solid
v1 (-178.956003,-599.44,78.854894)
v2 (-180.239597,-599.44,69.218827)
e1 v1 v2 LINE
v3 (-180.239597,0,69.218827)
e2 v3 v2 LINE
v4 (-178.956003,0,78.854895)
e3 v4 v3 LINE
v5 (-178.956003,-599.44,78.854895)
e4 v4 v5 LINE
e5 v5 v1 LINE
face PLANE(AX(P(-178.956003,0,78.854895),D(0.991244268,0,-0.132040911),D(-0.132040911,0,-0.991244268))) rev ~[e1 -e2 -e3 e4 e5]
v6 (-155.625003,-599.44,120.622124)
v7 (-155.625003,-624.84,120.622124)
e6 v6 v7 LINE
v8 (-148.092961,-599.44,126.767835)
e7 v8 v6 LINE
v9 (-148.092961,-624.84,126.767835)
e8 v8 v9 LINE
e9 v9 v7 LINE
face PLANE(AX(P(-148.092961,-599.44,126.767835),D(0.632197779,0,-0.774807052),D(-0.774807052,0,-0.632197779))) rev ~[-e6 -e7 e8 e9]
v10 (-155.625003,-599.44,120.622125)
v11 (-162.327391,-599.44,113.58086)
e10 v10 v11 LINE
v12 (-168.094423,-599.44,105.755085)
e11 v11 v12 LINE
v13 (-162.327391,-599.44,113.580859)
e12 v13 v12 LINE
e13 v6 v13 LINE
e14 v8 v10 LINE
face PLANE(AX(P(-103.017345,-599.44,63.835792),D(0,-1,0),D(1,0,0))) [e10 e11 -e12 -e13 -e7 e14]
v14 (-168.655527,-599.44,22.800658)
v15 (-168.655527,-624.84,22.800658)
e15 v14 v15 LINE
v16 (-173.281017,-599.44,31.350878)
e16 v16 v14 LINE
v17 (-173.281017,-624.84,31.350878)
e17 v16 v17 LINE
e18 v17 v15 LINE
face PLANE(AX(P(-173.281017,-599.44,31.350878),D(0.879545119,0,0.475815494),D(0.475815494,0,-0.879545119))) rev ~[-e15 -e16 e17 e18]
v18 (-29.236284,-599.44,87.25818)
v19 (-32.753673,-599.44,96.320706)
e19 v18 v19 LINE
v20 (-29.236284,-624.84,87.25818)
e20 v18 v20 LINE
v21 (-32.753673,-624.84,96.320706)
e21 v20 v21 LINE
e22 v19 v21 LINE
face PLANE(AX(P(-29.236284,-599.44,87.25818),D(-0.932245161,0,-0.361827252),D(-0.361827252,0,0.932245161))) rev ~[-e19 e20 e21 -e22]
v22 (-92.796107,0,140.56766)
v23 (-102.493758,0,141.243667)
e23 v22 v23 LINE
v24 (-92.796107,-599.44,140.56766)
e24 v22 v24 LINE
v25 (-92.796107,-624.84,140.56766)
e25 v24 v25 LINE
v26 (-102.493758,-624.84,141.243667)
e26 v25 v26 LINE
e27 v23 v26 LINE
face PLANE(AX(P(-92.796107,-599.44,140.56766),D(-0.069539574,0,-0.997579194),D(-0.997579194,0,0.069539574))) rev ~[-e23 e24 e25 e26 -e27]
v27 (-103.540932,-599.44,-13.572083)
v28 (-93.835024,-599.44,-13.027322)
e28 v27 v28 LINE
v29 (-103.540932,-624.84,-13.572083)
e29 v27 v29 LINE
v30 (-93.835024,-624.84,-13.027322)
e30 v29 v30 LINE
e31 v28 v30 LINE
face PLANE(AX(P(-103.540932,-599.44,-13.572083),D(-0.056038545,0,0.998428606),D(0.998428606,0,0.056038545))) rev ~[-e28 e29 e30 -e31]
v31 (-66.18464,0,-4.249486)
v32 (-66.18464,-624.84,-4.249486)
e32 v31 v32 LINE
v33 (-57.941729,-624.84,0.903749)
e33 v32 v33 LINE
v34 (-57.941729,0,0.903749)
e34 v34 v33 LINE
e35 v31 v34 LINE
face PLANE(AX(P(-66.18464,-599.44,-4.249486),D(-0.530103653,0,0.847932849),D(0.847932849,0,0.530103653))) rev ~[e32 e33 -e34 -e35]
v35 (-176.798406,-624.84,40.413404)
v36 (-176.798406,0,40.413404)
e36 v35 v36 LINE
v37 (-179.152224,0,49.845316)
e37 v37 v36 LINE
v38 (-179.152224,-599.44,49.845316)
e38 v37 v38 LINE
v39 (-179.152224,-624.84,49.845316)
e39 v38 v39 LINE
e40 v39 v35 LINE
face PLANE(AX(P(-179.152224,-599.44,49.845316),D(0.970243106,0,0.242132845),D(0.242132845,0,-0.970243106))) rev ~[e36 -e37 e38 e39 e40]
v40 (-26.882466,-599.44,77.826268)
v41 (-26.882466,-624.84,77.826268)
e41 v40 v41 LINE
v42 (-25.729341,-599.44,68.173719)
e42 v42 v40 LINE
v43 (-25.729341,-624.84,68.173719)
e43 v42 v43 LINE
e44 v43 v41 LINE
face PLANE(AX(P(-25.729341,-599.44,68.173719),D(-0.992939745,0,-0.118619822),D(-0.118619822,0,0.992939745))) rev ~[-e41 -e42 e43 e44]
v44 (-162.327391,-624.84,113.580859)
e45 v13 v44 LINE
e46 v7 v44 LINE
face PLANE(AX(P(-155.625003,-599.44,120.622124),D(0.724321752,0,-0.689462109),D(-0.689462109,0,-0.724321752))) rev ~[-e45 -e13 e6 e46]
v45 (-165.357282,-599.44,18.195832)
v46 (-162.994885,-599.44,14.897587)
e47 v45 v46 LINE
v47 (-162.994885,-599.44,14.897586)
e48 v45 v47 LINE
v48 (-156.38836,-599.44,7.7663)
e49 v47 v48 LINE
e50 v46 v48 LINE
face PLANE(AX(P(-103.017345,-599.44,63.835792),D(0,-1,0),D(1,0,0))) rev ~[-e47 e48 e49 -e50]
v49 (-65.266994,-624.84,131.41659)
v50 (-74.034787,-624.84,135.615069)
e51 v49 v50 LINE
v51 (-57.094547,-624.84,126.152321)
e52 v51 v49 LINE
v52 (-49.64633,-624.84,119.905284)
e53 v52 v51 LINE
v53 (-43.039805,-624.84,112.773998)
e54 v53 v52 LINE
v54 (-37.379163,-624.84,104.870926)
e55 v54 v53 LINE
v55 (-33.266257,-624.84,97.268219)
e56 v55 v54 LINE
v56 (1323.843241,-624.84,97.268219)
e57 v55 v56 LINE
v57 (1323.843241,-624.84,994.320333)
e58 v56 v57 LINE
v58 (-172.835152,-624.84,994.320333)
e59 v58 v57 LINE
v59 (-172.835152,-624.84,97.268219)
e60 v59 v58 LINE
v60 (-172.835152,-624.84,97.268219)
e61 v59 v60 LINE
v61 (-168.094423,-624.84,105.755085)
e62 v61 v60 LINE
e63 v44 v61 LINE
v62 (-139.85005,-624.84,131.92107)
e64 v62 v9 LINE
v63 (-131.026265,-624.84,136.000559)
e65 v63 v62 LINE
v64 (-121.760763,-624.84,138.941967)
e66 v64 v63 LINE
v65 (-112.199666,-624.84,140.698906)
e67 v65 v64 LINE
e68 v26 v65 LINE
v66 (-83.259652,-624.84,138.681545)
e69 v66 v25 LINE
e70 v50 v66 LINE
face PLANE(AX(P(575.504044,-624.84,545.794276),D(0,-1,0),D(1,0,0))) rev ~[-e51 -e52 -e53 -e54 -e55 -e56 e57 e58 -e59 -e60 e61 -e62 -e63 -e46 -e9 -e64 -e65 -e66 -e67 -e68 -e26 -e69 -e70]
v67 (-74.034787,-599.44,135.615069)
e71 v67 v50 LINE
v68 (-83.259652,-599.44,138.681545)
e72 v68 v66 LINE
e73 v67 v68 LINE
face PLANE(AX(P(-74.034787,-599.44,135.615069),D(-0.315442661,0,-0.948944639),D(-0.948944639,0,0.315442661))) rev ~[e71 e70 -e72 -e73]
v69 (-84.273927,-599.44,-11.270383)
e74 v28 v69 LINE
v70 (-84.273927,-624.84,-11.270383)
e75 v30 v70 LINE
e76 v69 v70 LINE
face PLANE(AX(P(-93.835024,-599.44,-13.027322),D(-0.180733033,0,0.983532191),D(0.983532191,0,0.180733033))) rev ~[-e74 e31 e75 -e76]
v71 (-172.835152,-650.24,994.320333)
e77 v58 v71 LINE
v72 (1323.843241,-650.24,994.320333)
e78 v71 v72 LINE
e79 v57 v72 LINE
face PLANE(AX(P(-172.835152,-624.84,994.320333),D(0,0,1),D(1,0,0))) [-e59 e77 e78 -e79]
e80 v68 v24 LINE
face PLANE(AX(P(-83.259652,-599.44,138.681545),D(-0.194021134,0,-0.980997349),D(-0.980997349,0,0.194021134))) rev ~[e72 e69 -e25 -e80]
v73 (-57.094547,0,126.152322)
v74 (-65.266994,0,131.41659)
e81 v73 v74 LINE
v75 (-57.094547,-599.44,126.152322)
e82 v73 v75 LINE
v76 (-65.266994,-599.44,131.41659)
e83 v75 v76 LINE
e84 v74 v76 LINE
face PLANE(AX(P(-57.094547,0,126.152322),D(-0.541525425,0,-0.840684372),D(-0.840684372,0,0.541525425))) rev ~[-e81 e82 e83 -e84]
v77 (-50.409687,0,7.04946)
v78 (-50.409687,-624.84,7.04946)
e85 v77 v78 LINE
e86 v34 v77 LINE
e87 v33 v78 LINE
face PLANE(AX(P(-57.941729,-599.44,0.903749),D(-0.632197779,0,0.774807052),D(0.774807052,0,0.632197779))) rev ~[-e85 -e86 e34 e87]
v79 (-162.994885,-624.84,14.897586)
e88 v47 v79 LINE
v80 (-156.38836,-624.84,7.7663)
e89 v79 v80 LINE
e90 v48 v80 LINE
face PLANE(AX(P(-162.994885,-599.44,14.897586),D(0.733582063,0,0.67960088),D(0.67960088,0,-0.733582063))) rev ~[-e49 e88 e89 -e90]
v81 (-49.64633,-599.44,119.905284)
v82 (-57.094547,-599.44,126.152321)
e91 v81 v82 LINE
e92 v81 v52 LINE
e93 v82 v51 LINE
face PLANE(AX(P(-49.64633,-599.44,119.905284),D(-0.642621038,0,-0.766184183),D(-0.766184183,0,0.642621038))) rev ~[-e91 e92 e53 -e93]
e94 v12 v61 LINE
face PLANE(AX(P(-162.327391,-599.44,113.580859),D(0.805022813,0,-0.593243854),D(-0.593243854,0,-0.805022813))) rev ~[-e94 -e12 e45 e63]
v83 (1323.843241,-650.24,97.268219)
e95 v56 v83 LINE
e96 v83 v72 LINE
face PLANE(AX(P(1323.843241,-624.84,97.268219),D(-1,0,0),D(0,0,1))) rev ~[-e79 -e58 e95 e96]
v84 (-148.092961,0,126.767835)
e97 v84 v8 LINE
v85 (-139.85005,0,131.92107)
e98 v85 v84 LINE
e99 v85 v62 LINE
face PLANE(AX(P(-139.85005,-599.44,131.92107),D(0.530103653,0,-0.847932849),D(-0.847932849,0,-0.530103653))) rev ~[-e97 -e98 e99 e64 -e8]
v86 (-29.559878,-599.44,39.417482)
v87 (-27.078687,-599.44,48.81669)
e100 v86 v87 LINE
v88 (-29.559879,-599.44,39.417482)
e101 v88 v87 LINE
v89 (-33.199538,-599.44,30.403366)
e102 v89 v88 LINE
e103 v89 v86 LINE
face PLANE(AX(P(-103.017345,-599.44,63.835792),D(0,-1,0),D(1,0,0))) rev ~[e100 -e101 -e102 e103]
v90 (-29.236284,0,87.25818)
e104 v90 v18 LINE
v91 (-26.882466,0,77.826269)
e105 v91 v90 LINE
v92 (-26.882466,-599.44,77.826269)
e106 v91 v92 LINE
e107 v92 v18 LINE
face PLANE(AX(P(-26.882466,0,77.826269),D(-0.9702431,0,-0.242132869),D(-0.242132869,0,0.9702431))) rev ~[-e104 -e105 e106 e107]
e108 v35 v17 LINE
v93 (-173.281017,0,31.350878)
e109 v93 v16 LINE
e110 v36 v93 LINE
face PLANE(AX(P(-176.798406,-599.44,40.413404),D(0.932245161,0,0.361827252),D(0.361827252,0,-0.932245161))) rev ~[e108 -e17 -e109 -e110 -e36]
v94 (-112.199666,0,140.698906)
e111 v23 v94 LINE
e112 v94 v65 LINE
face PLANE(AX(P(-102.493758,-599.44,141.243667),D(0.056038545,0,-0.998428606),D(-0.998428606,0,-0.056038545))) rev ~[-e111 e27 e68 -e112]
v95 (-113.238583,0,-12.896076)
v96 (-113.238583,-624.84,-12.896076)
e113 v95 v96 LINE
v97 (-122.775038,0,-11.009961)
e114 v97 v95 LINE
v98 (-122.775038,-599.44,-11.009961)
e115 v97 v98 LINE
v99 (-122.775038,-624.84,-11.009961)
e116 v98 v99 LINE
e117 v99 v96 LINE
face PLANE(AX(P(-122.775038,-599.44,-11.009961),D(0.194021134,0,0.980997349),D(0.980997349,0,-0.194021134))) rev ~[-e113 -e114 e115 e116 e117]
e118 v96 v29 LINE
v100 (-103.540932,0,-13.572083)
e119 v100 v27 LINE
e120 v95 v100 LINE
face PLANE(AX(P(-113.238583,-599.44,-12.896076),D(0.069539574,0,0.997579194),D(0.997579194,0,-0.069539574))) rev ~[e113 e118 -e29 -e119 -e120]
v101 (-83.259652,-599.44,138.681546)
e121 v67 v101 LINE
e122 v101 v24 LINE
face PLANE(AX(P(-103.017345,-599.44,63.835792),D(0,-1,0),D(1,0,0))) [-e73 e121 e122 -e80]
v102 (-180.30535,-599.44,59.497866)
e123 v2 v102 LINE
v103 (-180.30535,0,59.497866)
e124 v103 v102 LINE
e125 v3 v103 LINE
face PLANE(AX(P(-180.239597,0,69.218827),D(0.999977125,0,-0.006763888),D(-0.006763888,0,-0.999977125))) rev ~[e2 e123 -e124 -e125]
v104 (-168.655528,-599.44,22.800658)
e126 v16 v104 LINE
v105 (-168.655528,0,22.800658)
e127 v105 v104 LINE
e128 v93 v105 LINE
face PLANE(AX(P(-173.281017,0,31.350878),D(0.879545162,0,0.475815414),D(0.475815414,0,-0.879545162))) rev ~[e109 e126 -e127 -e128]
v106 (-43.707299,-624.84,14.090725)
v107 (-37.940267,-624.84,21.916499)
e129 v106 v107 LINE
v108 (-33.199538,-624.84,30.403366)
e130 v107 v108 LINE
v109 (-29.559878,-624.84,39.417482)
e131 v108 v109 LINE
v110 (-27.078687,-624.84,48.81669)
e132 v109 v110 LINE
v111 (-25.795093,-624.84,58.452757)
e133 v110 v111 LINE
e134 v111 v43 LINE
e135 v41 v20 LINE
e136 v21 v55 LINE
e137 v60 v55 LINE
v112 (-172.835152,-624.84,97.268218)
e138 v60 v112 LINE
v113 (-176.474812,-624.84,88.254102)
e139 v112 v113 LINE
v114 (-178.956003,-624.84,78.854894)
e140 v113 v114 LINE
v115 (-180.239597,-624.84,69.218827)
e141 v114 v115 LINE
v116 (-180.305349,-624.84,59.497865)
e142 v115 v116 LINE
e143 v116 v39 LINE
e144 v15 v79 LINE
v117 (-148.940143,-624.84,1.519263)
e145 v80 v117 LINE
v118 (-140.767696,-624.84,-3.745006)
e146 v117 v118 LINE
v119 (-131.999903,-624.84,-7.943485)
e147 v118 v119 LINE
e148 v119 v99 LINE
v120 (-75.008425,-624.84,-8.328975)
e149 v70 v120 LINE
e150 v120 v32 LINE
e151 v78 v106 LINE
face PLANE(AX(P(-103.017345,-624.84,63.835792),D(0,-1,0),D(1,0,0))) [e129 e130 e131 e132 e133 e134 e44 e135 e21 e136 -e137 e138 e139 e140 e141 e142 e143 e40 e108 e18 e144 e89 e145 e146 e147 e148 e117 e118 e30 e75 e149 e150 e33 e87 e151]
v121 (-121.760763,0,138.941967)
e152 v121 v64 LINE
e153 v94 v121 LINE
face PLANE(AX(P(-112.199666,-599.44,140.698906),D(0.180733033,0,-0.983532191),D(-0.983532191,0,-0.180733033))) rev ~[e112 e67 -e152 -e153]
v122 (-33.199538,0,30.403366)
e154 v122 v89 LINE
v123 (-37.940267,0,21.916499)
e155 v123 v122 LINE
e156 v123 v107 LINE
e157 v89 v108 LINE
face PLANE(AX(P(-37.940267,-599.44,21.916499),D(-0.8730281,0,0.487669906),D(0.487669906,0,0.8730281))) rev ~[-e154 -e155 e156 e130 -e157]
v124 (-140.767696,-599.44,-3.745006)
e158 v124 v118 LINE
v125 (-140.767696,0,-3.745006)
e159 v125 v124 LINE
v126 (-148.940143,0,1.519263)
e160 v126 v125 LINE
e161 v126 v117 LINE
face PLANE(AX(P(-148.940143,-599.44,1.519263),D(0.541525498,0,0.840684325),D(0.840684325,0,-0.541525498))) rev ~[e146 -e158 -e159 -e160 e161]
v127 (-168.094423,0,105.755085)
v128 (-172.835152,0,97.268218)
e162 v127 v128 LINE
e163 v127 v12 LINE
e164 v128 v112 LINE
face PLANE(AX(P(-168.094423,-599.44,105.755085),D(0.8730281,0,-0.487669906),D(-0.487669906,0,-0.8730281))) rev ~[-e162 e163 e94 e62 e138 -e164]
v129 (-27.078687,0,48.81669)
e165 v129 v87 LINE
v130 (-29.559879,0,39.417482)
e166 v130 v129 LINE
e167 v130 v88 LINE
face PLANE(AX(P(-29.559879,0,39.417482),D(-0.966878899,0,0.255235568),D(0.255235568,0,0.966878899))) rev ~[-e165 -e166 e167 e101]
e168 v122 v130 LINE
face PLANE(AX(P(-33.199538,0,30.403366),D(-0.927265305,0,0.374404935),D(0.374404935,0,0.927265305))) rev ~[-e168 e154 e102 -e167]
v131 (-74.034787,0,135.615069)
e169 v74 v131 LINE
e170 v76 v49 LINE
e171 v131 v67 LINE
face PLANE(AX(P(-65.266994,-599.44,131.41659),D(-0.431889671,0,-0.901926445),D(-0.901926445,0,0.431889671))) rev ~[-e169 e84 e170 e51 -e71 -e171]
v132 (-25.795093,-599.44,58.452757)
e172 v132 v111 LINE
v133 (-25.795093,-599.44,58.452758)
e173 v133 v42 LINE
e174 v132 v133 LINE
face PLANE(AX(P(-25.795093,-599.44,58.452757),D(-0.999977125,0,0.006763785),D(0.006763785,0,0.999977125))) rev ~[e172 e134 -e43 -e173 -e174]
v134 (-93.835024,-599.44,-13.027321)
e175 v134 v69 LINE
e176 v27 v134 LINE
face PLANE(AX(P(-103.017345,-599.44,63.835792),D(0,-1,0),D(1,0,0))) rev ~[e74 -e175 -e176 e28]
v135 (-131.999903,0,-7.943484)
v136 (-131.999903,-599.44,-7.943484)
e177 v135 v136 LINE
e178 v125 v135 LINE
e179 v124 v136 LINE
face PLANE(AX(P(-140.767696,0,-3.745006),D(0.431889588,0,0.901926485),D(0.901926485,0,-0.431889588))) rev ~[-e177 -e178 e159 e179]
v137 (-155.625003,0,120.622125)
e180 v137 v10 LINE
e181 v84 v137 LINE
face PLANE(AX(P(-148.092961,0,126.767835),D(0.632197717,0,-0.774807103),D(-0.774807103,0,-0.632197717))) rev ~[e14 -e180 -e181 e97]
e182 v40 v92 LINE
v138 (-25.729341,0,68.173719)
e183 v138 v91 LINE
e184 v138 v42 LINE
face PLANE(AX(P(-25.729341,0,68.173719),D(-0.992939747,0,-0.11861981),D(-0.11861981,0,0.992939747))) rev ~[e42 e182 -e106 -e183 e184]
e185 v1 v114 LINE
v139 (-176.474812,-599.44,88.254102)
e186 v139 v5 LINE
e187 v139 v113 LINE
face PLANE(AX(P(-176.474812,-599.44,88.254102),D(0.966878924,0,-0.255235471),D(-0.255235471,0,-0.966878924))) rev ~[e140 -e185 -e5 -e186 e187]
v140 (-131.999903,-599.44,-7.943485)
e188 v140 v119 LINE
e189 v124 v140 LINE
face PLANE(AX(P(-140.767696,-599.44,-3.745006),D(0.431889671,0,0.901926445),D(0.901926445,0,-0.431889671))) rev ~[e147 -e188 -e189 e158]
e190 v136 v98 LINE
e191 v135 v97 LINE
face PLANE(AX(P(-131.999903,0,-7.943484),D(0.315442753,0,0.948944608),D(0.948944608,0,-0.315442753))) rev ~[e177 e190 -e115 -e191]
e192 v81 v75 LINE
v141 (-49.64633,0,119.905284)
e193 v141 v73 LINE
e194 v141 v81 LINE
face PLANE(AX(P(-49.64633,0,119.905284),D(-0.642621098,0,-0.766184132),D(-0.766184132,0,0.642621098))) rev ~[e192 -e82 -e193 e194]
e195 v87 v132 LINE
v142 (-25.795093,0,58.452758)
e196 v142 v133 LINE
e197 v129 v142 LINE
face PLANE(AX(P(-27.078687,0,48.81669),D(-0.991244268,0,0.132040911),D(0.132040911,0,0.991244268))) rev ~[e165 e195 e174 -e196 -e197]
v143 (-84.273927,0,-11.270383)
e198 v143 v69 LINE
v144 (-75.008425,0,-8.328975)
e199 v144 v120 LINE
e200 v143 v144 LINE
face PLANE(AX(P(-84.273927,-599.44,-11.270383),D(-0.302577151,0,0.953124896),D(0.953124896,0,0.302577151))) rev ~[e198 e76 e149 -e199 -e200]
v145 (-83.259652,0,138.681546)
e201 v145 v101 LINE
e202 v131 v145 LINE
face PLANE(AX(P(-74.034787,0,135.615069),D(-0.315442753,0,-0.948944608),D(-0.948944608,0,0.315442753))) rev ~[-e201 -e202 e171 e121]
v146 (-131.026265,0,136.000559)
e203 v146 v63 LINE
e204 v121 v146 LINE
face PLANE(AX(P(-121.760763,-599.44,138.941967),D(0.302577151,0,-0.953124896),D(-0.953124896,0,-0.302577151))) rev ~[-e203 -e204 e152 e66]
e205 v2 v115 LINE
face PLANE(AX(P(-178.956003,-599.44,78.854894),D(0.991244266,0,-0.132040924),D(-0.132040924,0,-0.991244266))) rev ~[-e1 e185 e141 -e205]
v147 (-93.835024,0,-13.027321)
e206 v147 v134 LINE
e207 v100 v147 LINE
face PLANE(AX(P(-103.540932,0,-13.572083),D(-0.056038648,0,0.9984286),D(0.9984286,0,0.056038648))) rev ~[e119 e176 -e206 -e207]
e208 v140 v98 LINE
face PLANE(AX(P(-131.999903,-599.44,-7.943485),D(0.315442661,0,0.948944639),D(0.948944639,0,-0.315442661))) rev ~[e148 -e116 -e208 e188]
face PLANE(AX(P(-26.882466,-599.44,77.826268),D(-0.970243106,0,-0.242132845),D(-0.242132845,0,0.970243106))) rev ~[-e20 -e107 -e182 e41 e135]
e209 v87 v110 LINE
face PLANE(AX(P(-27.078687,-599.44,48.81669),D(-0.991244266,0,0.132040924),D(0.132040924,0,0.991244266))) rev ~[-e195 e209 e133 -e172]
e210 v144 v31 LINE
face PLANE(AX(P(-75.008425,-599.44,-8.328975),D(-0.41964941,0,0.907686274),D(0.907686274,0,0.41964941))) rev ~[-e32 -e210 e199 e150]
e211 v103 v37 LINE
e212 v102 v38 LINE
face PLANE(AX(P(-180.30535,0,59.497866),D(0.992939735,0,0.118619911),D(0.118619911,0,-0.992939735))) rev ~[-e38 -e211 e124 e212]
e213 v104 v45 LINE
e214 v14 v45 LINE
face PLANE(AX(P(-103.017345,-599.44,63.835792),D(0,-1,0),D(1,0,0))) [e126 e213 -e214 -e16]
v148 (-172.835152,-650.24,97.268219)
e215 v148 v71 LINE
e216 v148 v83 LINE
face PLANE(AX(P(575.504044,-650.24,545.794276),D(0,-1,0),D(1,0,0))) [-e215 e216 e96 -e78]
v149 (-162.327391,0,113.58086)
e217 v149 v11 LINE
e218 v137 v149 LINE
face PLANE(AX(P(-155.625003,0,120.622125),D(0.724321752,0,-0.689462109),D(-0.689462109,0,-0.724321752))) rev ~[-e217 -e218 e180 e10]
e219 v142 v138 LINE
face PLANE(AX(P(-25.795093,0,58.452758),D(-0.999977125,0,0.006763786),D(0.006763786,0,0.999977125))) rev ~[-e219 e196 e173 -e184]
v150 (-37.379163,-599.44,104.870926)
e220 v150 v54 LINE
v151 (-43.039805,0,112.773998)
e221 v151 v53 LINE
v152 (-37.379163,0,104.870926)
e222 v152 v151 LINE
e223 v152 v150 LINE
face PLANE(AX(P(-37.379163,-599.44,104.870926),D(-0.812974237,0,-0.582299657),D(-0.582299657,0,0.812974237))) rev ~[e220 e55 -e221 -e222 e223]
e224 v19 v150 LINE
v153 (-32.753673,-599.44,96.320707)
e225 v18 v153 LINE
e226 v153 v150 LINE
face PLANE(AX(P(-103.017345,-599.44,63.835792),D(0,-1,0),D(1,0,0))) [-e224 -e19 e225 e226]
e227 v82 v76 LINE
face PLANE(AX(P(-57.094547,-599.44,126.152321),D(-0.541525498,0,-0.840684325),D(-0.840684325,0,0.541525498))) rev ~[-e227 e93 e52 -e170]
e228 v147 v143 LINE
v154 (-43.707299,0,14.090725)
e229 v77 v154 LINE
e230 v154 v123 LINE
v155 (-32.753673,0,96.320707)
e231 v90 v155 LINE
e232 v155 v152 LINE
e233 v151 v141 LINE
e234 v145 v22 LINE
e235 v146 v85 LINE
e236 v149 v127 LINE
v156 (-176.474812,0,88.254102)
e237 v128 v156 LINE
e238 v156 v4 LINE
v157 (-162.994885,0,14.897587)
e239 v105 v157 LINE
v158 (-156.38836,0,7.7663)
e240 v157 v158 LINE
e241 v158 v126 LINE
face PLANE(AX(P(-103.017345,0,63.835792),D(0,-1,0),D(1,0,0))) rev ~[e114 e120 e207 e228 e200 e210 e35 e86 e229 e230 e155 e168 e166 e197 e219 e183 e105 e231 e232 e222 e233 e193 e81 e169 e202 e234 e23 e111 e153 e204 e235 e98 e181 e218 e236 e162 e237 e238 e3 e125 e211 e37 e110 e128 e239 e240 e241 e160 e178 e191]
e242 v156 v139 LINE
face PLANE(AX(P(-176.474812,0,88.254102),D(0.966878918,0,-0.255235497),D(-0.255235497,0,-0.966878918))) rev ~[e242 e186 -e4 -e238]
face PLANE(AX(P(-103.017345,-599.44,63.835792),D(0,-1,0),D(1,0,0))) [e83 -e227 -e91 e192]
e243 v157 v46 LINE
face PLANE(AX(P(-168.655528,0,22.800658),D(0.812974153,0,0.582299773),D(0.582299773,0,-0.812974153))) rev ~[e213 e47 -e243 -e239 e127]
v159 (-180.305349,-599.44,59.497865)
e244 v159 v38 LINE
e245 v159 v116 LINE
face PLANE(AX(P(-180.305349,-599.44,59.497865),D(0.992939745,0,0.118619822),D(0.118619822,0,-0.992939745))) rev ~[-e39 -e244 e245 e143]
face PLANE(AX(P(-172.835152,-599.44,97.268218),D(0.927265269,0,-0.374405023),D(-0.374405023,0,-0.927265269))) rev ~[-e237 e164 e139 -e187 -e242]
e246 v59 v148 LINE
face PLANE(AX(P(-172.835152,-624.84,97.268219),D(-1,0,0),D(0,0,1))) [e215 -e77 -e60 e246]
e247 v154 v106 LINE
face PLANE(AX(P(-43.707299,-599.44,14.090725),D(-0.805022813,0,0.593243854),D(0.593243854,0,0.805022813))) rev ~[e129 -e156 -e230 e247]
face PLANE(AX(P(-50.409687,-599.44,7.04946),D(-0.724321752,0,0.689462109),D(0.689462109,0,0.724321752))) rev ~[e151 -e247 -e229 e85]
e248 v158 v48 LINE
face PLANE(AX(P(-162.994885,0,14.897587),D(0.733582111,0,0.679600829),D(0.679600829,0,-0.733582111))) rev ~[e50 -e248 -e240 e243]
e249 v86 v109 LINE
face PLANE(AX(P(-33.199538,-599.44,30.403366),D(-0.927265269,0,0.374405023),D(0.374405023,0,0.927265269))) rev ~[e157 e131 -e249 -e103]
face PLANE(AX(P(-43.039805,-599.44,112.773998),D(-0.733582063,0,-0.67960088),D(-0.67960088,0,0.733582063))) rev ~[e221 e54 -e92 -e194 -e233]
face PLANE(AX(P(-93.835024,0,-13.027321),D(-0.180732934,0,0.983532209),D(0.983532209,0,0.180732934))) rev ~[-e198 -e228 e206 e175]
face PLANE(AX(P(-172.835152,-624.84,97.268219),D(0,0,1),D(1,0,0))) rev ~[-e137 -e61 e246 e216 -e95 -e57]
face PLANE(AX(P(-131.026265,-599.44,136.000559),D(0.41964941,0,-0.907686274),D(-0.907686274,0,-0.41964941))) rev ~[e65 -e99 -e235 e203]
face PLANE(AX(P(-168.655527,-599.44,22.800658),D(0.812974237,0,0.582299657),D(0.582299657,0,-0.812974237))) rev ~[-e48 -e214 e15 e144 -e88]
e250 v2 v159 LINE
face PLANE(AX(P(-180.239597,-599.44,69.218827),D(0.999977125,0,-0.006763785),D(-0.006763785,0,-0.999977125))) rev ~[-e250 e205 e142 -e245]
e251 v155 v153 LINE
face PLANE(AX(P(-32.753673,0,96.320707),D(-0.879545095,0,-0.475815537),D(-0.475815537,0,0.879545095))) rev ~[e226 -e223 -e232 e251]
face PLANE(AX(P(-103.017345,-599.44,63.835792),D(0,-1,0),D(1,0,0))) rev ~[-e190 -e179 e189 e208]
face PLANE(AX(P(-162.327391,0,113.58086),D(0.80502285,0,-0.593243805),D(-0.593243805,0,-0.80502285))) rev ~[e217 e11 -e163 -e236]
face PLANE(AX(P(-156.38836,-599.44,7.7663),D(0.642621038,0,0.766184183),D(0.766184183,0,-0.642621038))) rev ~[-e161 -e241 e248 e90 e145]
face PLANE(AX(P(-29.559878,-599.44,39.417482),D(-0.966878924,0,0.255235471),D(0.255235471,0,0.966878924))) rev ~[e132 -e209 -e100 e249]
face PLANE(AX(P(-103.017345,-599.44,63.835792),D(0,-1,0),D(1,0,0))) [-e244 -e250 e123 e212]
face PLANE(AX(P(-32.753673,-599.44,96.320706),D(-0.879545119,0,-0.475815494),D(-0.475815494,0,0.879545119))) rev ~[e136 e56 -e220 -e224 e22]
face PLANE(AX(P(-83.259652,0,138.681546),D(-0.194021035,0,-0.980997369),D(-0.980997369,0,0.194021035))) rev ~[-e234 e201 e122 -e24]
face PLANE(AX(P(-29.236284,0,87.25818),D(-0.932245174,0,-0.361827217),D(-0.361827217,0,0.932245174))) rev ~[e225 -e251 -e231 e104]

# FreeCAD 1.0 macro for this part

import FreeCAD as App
import Part
import Sketcher
from FreeCAD import Vector

doc = App.newDocument("Part")
params = doc.addObject("Spreadsheet::Sheet", "Params")
for row, (alias, value) in enumerate([
    ("pad1_length", "23.6 in"),
    ("pad2_length", "1 in"),
    ("pad3_length", "1 in"),
], start=1):
    params.set(f"A{row}", alias)
    params.set(f"B{row}", "=" + value)
    params.setAlias(f"B{row}", alias)

body = doc.addObject("PartDesign::Body", "Body")

# Sketch on XZ plane
sketch1 = doc.addObject("Sketcher::SketchObject", "Sketch")
body.addObject(sketch1)
sketch1.AttachmentSupport = (doc.XZ_Plane, [""])
sketch1.MapMode = "FlatFace"
sketch1.addGeometry([
    Part.LineSegment(Vector(-37.940267, 21.916499, 0), Vector(-33.199538, 30.403366, 0)),  # 0
    Part.LineSegment(Vector(-33.199538, 30.403366, 0), Vector(-29.559879, 39.417482, 0)),  # 1
    Part.LineSegment(Vector(-29.559879, 39.417482, 0), Vector(-27.078687, 48.81669, 0)),  # 2
    Part.LineSegment(Vector(-27.078687, 48.81669, 0), Vector(-25.795093, 58.452758, 0)),  # 3
    Part.LineSegment(Vector(-25.795093, 58.452758, 0), Vector(-25.729341, 68.173719, 0)),  # 4
    Part.LineSegment(Vector(-25.729341, 68.173719, 0), Vector(-26.882466, 77.826269, 0)),  # 5
    Part.LineSegment(Vector(-26.882466, 77.826269, 0), Vector(-29.236284, 87.25818, 0)),  # 6
    Part.LineSegment(Vector(-29.236284, 87.25818, 0), Vector(-32.753673, 96.320707, 0)),  # 7
    Part.LineSegment(Vector(-32.753673, 96.320707, 0), Vector(-37.379163, 104.870926, 0)),  # 8
    Part.LineSegment(Vector(-37.379163, 104.870926, 0), Vector(-43.039805, 112.773998, 0)),  # 9
    Part.LineSegment(Vector(-43.039805, 112.773998, 0), Vector(-49.64633, 119.905284, 0)),  # 10
    Part.LineSegment(Vector(-49.64633, 119.905284, 0), Vector(-57.094547, 126.152322, 0)),  # 11
    Part.LineSegment(Vector(-57.094547, 126.152322, 0), Vector(-65.266994, 131.41659, 0)),  # 12
    Part.LineSegment(Vector(-65.266994, 131.41659, 0), Vector(-74.034787, 135.615069, 0)),  # 13
    Part.LineSegment(Vector(-74.034787, 135.615069, 0), Vector(-83.259652, 138.681546, 0)),  # 14
    Part.LineSegment(Vector(-83.259652, 138.681546, 0), Vector(-92.796107, 140.56766, 0)),  # 15
    Part.LineSegment(Vector(-92.796107, 140.56766, 0), Vector(-102.493758, 141.243667, 0)),  # 16
    Part.LineSegment(Vector(-102.493758, 141.243667, 0), Vector(-112.199666, 140.698906, 0)),  # 17
    Part.LineSegment(Vector(-112.199666, 140.698906, 0), Vector(-121.760763, 138.941967, 0)),  # 18
    Part.LineSegment(Vector(-121.760763, 138.941967, 0), Vector(-131.026265, 136.000559, 0)),  # 19
    Part.LineSegment(Vector(-131.026265, 136.000559, 0), Vector(-139.85005, 131.92107, 0)),  # 20
    Part.LineSegment(Vector(-139.85005, 131.92107, 0), Vector(-148.092961, 126.767835, 0)),  # 21
    Part.LineSegment(Vector(-148.092961, 126.767835, 0), Vector(-155.625003, 120.622125, 0)),  # 22
    Part.LineSegment(Vector(-155.625003, 120.622125, 0), Vector(-162.327391, 113.58086, 0)),  # 23
    Part.LineSegment(Vector(-162.327391, 113.58086, 0), Vector(-168.094423, 105.755085, 0)),  # 24
    Part.LineSegment(Vector(-168.094423, 105.755085, 0), Vector(-172.835152, 97.268218, 0)),  # 25
    Part.LineSegment(Vector(-172.835152, 97.268218, 0), Vector(-176.474812, 88.254102, 0)),  # 26
    Part.LineSegment(Vector(-176.474812, 88.254102, 0), Vector(-178.956003, 78.854895, 0)),  # 27
    Part.LineSegment(Vector(-178.956003, 78.854895, 0), Vector(-180.239597, 69.218827, 0)),  # 28
    Part.LineSegment(Vector(-180.239597, 69.218827, 0), Vector(-180.30535, 59.497866, 0)),  # 29
    Part.LineSegment(Vector(-180.30535, 59.497866, 0), Vector(-179.152224, 49.845316, 0)),  # 30
    Part.LineSegment(Vector(-179.152224, 49.845316, 0), Vector(-176.798406, 40.413404, 0)),  # 31
    Part.LineSegment(Vector(-176.798406, 40.413404, 0), Vector(-173.281017, 31.350878, 0)),  # 32
    Part.LineSegment(Vector(-173.281017, 31.350878, 0), Vector(-168.655528, 22.800658, 0)),  # 33
    Part.LineSegment(Vector(-168.655528, 22.800658, 0), Vector(-162.994885, 14.897587, 0)),  # 34
    Part.LineSegment(Vector(-162.994885, 14.897587, 0), Vector(-156.38836, 7.7663, 0)),  # 35
    Part.LineSegment(Vector(-156.38836, 7.7663, 0), Vector(-148.940143, 1.519263, 0)),  # 36
    Part.LineSegment(Vector(-148.940143, 1.519263, 0), Vector(-140.767696, -3.745006, 0)),  # 37
    Part.LineSegment(Vector(-140.767696, -3.745006, 0), Vector(-131.999903, -7.943484, 0)),  # 38
    Part.LineSegment(Vector(-131.999903, -7.943484, 0), Vector(-122.775038, -11.009961, 0)),  # 39
    Part.LineSegment(Vector(-122.775038, -11.009961, 0), Vector(-113.238583, -12.896076, 0)),  # 40
    Part.LineSegment(Vector(-113.238583, -12.896076, 0), Vector(-103.540932, -13.572083, 0)),  # 41
    Part.LineSegment(Vector(-103.540932, -13.572083, 0), Vector(-93.835024, -13.027321, 0)),  # 42
    Part.LineSegment(Vector(-93.835024, -13.027321, 0), Vector(-84.273927, -11.270383, 0)),  # 43
    Part.LineSegment(Vector(-84.273927, -11.270383, 0), Vector(-75.008425, -8.328975, 0)),  # 44
    Part.LineSegment(Vector(-75.008425, -8.328975, 0), Vector(-66.18464, -4.249486, 0)),  # 45
    Part.LineSegment(Vector(-66.18464, -4.249486, 0), Vector(-57.941729, 0.903749, 0)),  # 46
    Part.LineSegment(Vector(-57.941729, 0.903749, 0), Vector(-50.409687, 7.04946, 0)),  # 47
    Part.LineSegment(Vector(-50.409687, 7.04946, 0), Vector(-43.707299, 14.090725, 0)),  # 48
    Part.LineSegment(Vector(-43.707299, 14.090725, 0), Vector(-37.940267, 21.916499, 0)),  # 49
], False)
sketch1.addConstraint([
    Sketcher.Constraint("Coincident", 0, 2, 1, 1),
    Sketcher.Constraint("Coincident", 1, 2, 2, 1),
    Sketcher.Constraint("Coincident", 2, 2, 3, 1),
    Sketcher.Constraint("Coincident", 3, 2, 4, 1),
    Sketcher.Constraint("Coincident", 4, 2, 5, 1),
    Sketcher.Constraint("Coincident", 5, 2, 6, 1),
    Sketcher.Constraint("Coincident", 6, 2, 7, 1),
    Sketcher.Constraint("Coincident", 7, 2, 8, 1),
    Sketcher.Constraint("Coincident", 8, 2, 9, 1),
    Sketcher.Constraint("Coincident", 9, 2, 10, 1),
    Sketcher.Constraint("Coincident", 10, 2, 11, 1),
    Sketcher.Constraint("Coincident", 11, 2, 12, 1),
    Sketcher.Constraint("Coincident", 12, 2, 13, 1),
    Sketcher.Constraint("Coincident", 13, 2, 14, 1),
    Sketcher.Constraint("Coincident", 14, 2, 15, 1),
    Sketcher.Constraint("Coincident", 15, 2, 16, 1),
    Sketcher.Constraint("Coincident", 16, 2, 17, 1),
    Sketcher.Constraint("Coincident", 17, 2, 18, 1),
    Sketcher.Constraint("Coincident", 18, 2, 19, 1),
    Sketcher.Constraint("Coincident", 19, 2, 20, 1),
    Sketcher.Constraint("Coincident", 20, 2, 21, 1),
    Sketcher.Constraint("Coincident", 21, 2, 22, 1),
    Sketcher.Constraint("Coincident", 22, 2, 23, 1),
    Sketcher.Constraint("Coincident", 23, 2, 24, 1),
    Sketcher.Constraint("Coincident", 24, 2, 25, 1),
    Sketcher.Constraint("Coincident", 25, 2, 26, 1),
    Sketcher.Constraint("Coincident", 26, 2, 27, 1),
    Sketcher.Constraint("Coincident", 27, 2, 28, 1),
    Sketcher.Constraint("Coincident", 28, 2, 29, 1),
    Sketcher.Constraint("Coincident", 29, 2, 30, 1),
    Sketcher.Constraint("Coincident", 30, 2, 31, 1),
    Sketcher.Constraint("Coincident", 31, 2, 32, 1),
    Sketcher.Constraint("Coincident", 32, 2, 33, 1),
    Sketcher.Constraint("Coincident", 33, 2, 34, 1),
    Sketcher.Constraint("Coincident", 34, 2, 35, 1),
    Sketcher.Constraint("Coincident", 35, 2, 36, 1),
    Sketcher.Constraint("Coincident", 36, 2, 37, 1),
    Sketcher.Constraint("Coincident", 37, 2, 38, 1),
    Sketcher.Constraint("Coincident", 38, 2, 39, 1),
    Sketcher.Constraint("Coincident", 39, 2, 40, 1),
    Sketcher.Constraint("Coincident", 40, 2, 41, 1),
    Sketcher.Constraint("Coincident", 41, 2, 42, 1),
    Sketcher.Constraint("Coincident", 42, 2, 43, 1),
    Sketcher.Constraint("Coincident", 43, 2, 44, 1),
    Sketcher.Constraint("Coincident", 44, 2, 45, 1),
    Sketcher.Constraint("Coincident", 45, 2, 46, 1),
    Sketcher.Constraint("Coincident", 46, 2, 47, 1),
    Sketcher.Constraint("Coincident", 47, 2, 48, 1),
    Sketcher.Constraint("Coincident", 48, 2, 49, 1),
    Sketcher.Constraint("Coincident", 49, 2, 0, 1),
    Sketcher.Constraint("DistanceY", -1, 1, 9, 2, 112.773998),
    Sketcher.Constraint("DistanceY", -1, 1, 35, 2, 7.7663),
    Sketcher.Constraint("DistanceX", 48, 2, -1, 1, 43.707299),
    Sketcher.Constraint("DistanceY", -1, 1, 49, 2, 21.916499),
    Sketcher.Constraint("DistanceY", 18, 2, 16, 2, 2.3017),
    Sketcher.Constraint("DistanceX", 19, 2, 18, 2, 9.265502),
    Sketcher.Constraint("DistanceX", 19, 2, 17, 2, 18.826599),
    Sketcher.Constraint("DistanceY", 19, 2, 15, 2, 4.567101),
    Sketcher.Constraint("DistanceX", 21, 2, 18, 2, 26.332198),
    Sketcher.Constraint("DistanceY", 23, 2, 19, 2, 22.419699),
    Sketcher.Constraint("DistanceX", 25, 2, 20, 2, 32.985102),
    Sketcher.Constraint("DistanceX", 27, 2, 22, 2, 23.331),
    Sketcher.Constraint("DistanceX", 29, 2, 25, 2, 7.470198),
    Sketcher.Constraint("DistanceY", 31, 2, 26, 2, 47.840698),
    Sketcher.Constraint("DistanceY", 41, 2, 38, 2, 5.628599),
    Sketcher.Constraint("DistanceY", 41, 2, 43, 2, 2.3017),
    Sketcher.Constraint("DistanceX", 43, 2, 44, 2, 9.265502),
    Sketcher.Constraint("DistanceX", 42, 2, 44, 2, 18.826599),
    Sketcher.Constraint("DistanceY", 40, 2, 44, 2, 4.567101),
    Sketcher.Constraint("DistanceX", 1, 2, -1, 1, 29.559879),
    Sketcher.Constraint("DistanceY", -1, 1, 2, 2, 48.81669),
    Sketcher.Constraint("DistanceY", -1, 1, 3, 2, 58.452758),
    Sketcher.Constraint("DistanceX", 4, 2, -1, 1, 25.729341),
    Sketcher.Constraint("DistanceY", -1, 1, 4, 2, 68.173719),
    Sketcher.Constraint("DistanceY", -1, 1, 5, 2, 77.826269),
    Sketcher.Constraint("DistanceY", -1, 1, 6, 2, 87.25818),
    Sketcher.Constraint("DistanceX", 10, 2, -1, 1, 49.64633),
    Sketcher.Constraint("DistanceY", -1, 1, 11, 2, 126.152322),
    Sketcher.Constraint("DistanceY", -1, 1, 12, 2, 131.41659),
    Sketcher.Constraint("DistanceY", -1, 1, 13, 2, 135.615069),
    Sketcher.Constraint("DistanceY", -1, 1, 15, 2, 140.56766),
    Sketcher.Constraint("DistanceX", 16, 2, -1, 1, 102.493758),
    Sketcher.Constraint("DistanceX", 20, 2, -1, 1, 139.85005),
    Sketcher.Constraint("DistanceY", -1, 1, 20, 2, 131.92107),
    Sketcher.Constraint("DistanceX", 21, 2, -1, 1, 148.092961),
    Sketcher.Constraint("DistanceX", 23, 2, -1, 1, 162.327391),
    Sketcher.Constraint("DistanceY", -1, 1, 25, 2, 97.268218),
    Sketcher.Constraint("DistanceX", 26, 2, -1, 1, 176.474812),
    Sketcher.Constraint("DistanceY", -1, 1, 32, 2, 31.350878),
    Sketcher.Constraint("DistanceX", 33, 2, -1, 1, 168.655528),
    Sketcher.Constraint("DistanceX", 35, 2, -1, 1, 156.38836),
    Sketcher.Constraint("DistanceY", 39, 2, -1, 1, 11.009961),
    Sketcher.Constraint("DistanceX", 41, 2, -1, 1, 103.540932),
    Sketcher.Constraint("DistanceY", 42, 2, -1, 1, 13.027321),
    Sketcher.Constraint("DistanceX", 45, 2, -1, 1, 66.18464),
    Sketcher.Constraint("DistanceX", 46, 2, -1, 1, 57.941729),
    Sketcher.Constraint("DistanceY", -1, 1, 46, 2, 0.903749),
    Sketcher.Constraint("DistanceY", -1, 1, 47, 2, 7.04946),
    Sketcher.Constraint("DistanceX", 0, 2, 1, 2, 3.639659),
    Sketcher.Constraint("DistanceY", 1, 2, 2, 2, 9.399208),
    Sketcher.Constraint("DistanceX", 0, 2, 2, 2, 6.120851),
    Sketcher.Constraint("DistanceX", 3, 2, 4, 2, 0.065752),
    Sketcher.Constraint("DistanceX", 2, 2, 5, 2, 0.196221),
    Sketcher.Constraint("DistanceX", 6, 2, 5, 2, 2.353818),
    Sketcher.Constraint("DistanceX", 7, 2, 6, 2, 3.517389),
    Sketcher.Constraint("DistanceY", 5, 2, 7, 2, 18.494438),
    Sketcher.Constraint("DistanceX", 8, 2, 7, 2, 4.62549),
    Sketcher.Constraint("DistanceY", 7, 2, 8, 2, 8.550219),
    Sketcher.Constraint("DistanceX", 9, 2, 6, 2, 13.803521),
    Sketcher.Constraint("DistanceY", 10, 2, 11, 2, 6.247038),
    Sketcher.Constraint("DistanceX", 11, 2, 9, 2, 14.054742),
    Sketcher.Constraint("DistanceX", 12, 2, 9, 2, 22.227189),
    Sketcher.Constraint("DistanceX", 13, 2, 11, 2, 16.94024),
    Sketcher.Constraint("DistanceX", 14, 2, 12, 2, 17.992658),
    Sketcher.Constraint("DistanceX", 15, 2, 13, 2, 18.76132),
    Sketcher.Constraint("DistanceY", 14, 2, 16, 2, 2.562121),
    Sketcher.Constraint("DistanceY", 17, 2, 16, 2, 0.544761),
    Sketcher.Constraint("DistanceY", 21, 2, 17, 2, 13.931071),
    Sketcher.Constraint("DistanceX", 22, 2, 21, 2, 7.532042),
    Sketcher.Constraint("DistanceY", 22, 2, 21, 2, 6.14571),
    Sketcher.Constraint("DistanceX", 24, 2, 22, 2, 12.46942),
    Sketcher.Constraint("DistanceY", 24, 2, 22, 2, 14.86704),
    Sketcher.Constraint("DistanceY", 27, 2, 24, 2, 26.90019),
    Sketcher.Constraint("DistanceY", 28, 2, 25, 2, 28.049391),
    Sketcher.Constraint("DistanceY", 29, 2, 28, 2, 9.720961),
    Sketcher.Constraint("DistanceY", 29, 2, 27, 2, 19.357029),
    Sketcher.Constraint("DistanceY", 30, 2, 29, 2, 9.65255),
    Sketcher.Constraint("DistanceX", 30, 2, 27, 2, 0.196221),
    Sketcher.Constraint("DistanceY", 31, 2, 30, 2, 9.431912),
    Sketcher.Constraint("DistanceX", 28, 2, 31, 2, 3.441191),
    Sketcher.Constraint("DistanceX", 31, 2, 32, 2, 3.517389),
    Sketcher.Constraint("DistanceX", 32, 2, 33, 2, 4.625489),
    Sketcher.Constraint("DistanceY", 33, 2, 32, 2, 8.55022),
    Sketcher.Constraint("DistanceY", 34, 2, 33, 2, 7.903071),
    Sketcher.Constraint("DistanceX", 32, 2, 34, 2, 10.286132),
    Sketcher.Constraint("DistanceY", 36, 2, 31, 2, 38.894141),
    Sketcher.Constraint("DistanceY", 37, 2, 36, 2, 5.264269),
    Sketcher.Constraint("DistanceX", 34, 2, 37, 2, 22.227189),
    Sketcher.Constraint("DistanceX", 36, 2, 38, 2, 16.94024),
    Sketcher.Constraint("DistanceY", 38, 2, 34, 2, 22.841071),
    Sketcher.Constraint("DistanceX", 37, 2, 39, 2, 17.992658),
    Sketcher.Constraint("DistanceX", 38, 2, 40, 2, 18.76132),
    Sketcher.Constraint("DistanceY", 40, 2, 37, 2, 9.15107),
    Sketcher.Constraint("DistanceX", 40, 2, 41, 2, 9.697651),
    Sketcher.Constraint("DistanceX", 40, 2, 42, 2, 19.403559),
    Sketcher.Constraint("DistanceY", 44, 2, 45, 2, 4.079489),
    Sketcher.Constraint("DistanceX", 47, 2, 0, 2, 17.210149),
    Sketcher.Constraint("DistanceY", 48, 2, 0, 2, 16.312641),
    Sketcher.Constraint("DistanceY", 45, 2, 48, 2, 18.340211),
    Sketcher.Constraint("DistanceX", 49, 2, 0, 2, 4.740729),
])
pad1 = doc.addObject("PartDesign::Pad", "Pad")
body.addObject(pad1)
pad1.Profile = sketch1
pad1.setExpression("Length", "Params.pad1_length")

# Sketch on XZ plane
sketch2 = doc.addObject("Sketcher::SketchObject", "Sketch001")
body.addObject(sketch2)
sketch2.AttachmentSupport = (doc.XZ_Plane, [""])
sketch2.MapMode = "FlatFace"
sketch2.AttachmentOffset = App.Placement(Vector(0, 0, 23.6 * 25.4), App.Rotation())
sketch2.addGeometry([
    Part.LineSegment(Vector(-176.798406, 40.413404, 0), Vector(-173.281017, 31.350878, 0)),  # 0
    Part.LineSegment(Vector(-173.281017, 31.350878, 0), Vector(-168.655527, 22.800658, 0)),  # 1
    Part.LineSegment(Vector(-168.655527, 22.800658, 0), Vector(-162.994885, 14.897586, 0)),  # 2
    Part.LineSegment(Vector(-162.994885, 14.897586, 0), Vector(-156.38836, 7.7663, 0)),  # 3
    Part.LineSegment(Vector(-156.38836, 7.7663, 0), Vector(-148.940143, 1.519263, 0)),  # 4
    Part.LineSegment(Vector(-148.940143, 1.519263, 0), Vector(-140.767696, -3.745006, 0)),  # 5
    Part.LineSegment(Vector(-140.767696, -3.745006, 0), Vector(-131.999903, -7.943485, 0)),  # 6
    Part.LineSegment(Vector(-131.999903, -7.943485, 0), Vector(-122.775038, -11.009961, 0)),  # 7
    Part.LineSegment(Vector(-122.775038, -11.009961, 0), Vector(-113.238583, -12.896076, 0)),  # 8
    Part.LineSegment(Vector(-113.238583, -12.896076, 0), Vector(-103.540932, -13.572083, 0)),  # 9
    Part.LineSegment(Vector(-103.540932, -13.572083, 0), Vector(-93.835024, -13.027322, 0)),  # 10
    Part.LineSegment(Vector(-93.835024, -13.027322, 0), Vector(-84.273927, -11.270383, 0)),  # 11
    Part.LineSegment(Vector(-84.273927, -11.270383, 0), Vector(-75.008425, -8.328975, 0)),  # 12
    Part.LineSegment(Vector(-75.008425, -8.328975, 0), Vector(-66.18464, -4.249486, 0)),  # 13
    Part.LineSegment(Vector(-66.18464, -4.249486, 0), Vector(-57.941729, 0.903749, 0)),  # 14
    Part.LineSegment(Vector(-57.941729, 0.903749, 0), Vector(-50.409687, 7.04946, 0)),  # 15
    Part.LineSegment(Vector(-50.409687, 7.04946, 0), Vector(-43.707299, 14.090725, 0)),  # 16
    Part.LineSegment(Vector(-43.707299, 14.090725, 0), Vector(-37.940267, 21.916499, 0)),  # 17
    Part.LineSegment(Vector(-37.940267, 21.916499, 0), Vector(-33.199538, 30.403366, 0)),  # 18
    Part.LineSegment(Vector(-33.199538, 30.403366, 0), Vector(-29.559878, 39.417482, 0)),  # 19
    Part.LineSegment(Vector(-29.559878, 39.417482, 0), Vector(-27.078687, 48.81669, 0)),  # 20
    Part.LineSegment(Vector(-27.078687, 48.81669, 0), Vector(-25.795093, 58.452757, 0)),  # 21
    Part.LineSegment(Vector(-25.795093, 58.452757, 0), Vector(-25.729341, 68.173719, 0)),  # 22
    Part.LineSegment(Vector(-25.729341, 68.173719, 0), Vector(-26.882466, 77.826268, 0)),  # 23
    Part.LineSegment(Vector(-26.882466, 77.826268, 0), Vector(-29.236284, 87.25818, 0)),  # 24
    Part.LineSegment(Vector(-29.236284, 87.25818, 0), Vector(-32.753673, 96.320706, 0)),  # 25
    Part.LineSegment(Vector(-32.753673, 96.320706, 0), Vector(-37.379163, 104.870926, 0)),  # 26
    Part.LineSegment(Vector(-37.379163, 104.870926, 0), Vector(-43.039805, 112.773998, 0)),  # 27
    Part.LineSegment(Vector(-43.039805, 112.773998, 0), Vector(-49.64633, 119.905284, 0)),  # 28
    Part.LineSegment(Vector(-49.64633, 119.905284, 0), Vector(-57.094547, 126.152321, 0)),  # 29
    Part.LineSegment(Vector(-57.094547, 126.152321, 0), Vector(-65.266994, 131.41659, 0)),  # 30
    Part.LineSegment(Vector(-65.266994, 131.41659, 0), Vector(-74.034787, 135.615069, 0)),  # 31
    Part.LineSegment(Vector(-74.034787, 135.615069, 0), Vector(-83.259652, 138.681545, 0)),  # 32
    Part.LineSegment(Vector(-83.259652, 138.681545, 0), Vector(-92.796107, 140.56766, 0)),  # 33
    Part.LineSegment(Vector(-92.796107, 140.56766, 0), Vector(-102.493758, 141.243667, 0)),  # 34
    Part.LineSegment(Vector(-102.493758, 141.243667, 0), Vector(-112.199666, 140.698906, 0)),  # 35
    Part.LineSegment(Vector(-112.199666, 140.698906, 0), Vector(-121.760763, 138.941967, 0)),  # 36
    Part.LineSegment(Vector(-121.760763, 138.941967, 0), Vector(-131.026265, 136.000559, 0)),  # 37
    Part.LineSegment(Vector(-131.026265, 136.000559, 0), Vector(-139.85005, 131.92107, 0)),  # 38
    Part.LineSegment(Vector(-139.85005, 131.92107, 0), Vector(-148.092961, 126.767835, 0)),  # 39
    Part.LineSegment(Vector(-148.092961, 126.767835, 0), Vector(-155.625003, 120.622124, 0)),  # 40
    Part.LineSegment(Vector(-155.625003, 120.622124, 0), Vector(-162.327391, 113.580859, 0)),  # 41
    Part.LineSegment(Vector(-162.327391, 113.580859, 0), Vector(-168.094423, 105.755085, 0)),  # 42
    Part.LineSegment(Vector(-168.094423, 105.755085, 0), Vector(-172.835152, 97.268218, 0)),  # 43
    Part.LineSegment(Vector(-172.835152, 97.268218, 0), Vector(-176.474812, 88.254102, 0)),  # 44
    Part.LineSegment(Vector(-176.474812, 88.254102, 0), Vector(-178.956003, 78.854894, 0)),  # 45
    Part.LineSegment(Vector(-178.956003, 78.854894, 0), Vector(-180.239597, 69.218827, 0)),  # 46
    Part.LineSegment(Vector(-180.239597, 69.218827, 0), Vector(-180.305349, 59.497865, 0)),  # 47
    Part.LineSegment(Vector(-180.305349, 59.497865, 0), Vector(-179.152224, 49.845316, 0)),  # 48
    Part.LineSegment(Vector(-179.152224, 49.845316, 0), Vector(-176.798406, 40.413404, 0)),  # 49
], False)
sketch2.addConstraint([
    Sketcher.Constraint("Coincident", 0, 2, 1, 1),
    Sketcher.Constraint("Coincident", 1, 2, 2, 1),
    Sketcher.Constraint("Coincident", 2, 2, 3, 1),
    Sketcher.Constraint("Coincident", 3, 2, 4, 1),
    Sketcher.Constraint("Coincident", 4, 2, 5, 1),
    Sketcher.Constraint("Coincident", 5, 2, 6, 1),
    Sketcher.Constraint("Coincident", 6, 2, 7, 1),
    Sketcher.Constraint("Coincident", 7, 2, 8, 1),
    Sketcher.Constraint("Coincident", 8, 2, 9, 1),
    Sketcher.Constraint("Coincident", 9, 2, 10, 1),
    Sketcher.Constraint("Coincident", 10, 2, 11, 1),
    Sketcher.Constraint("Coincident", 11, 2, 12, 1),
    Sketcher.Constraint("Coincident", 12, 2, 13, 1),
    Sketcher.Constraint("Coincident", 13, 2, 14, 1),
    Sketcher.Constraint("Coincident", 14, 2, 15, 1),
    Sketcher.Constraint("Coincident", 15, 2, 16, 1),
    Sketcher.Constraint("Coincident", 16, 2, 17, 1),
    Sketcher.Constraint("Coincident", 17, 2, 18, 1),
    Sketcher.Constraint("Coincident", 18, 2, 19, 1),
    Sketcher.Constraint("Coincident", 19, 2, 20, 1),
    Sketcher.Constraint("Coincident", 20, 2, 21, 1),
    Sketcher.Constraint("Coincident", 21, 2, 22, 1),
    Sketcher.Constraint("Coincident", 22, 2, 23, 1),
    Sketcher.Constraint("Coincident", 23, 2, 24, 1),
    Sketcher.Constraint("Coincident", 24, 2, 25, 1),
    Sketcher.Constraint("Coincident", 25, 2, 26, 1),
    Sketcher.Constraint("Coincident", 26, 2, 27, 1),
    Sketcher.Constraint("Coincident", 27, 2, 28, 1),
    Sketcher.Constraint("Coincident", 28, 2, 29, 1),
    Sketcher.Constraint("Coincident", 29, 2, 30, 1),
    Sketcher.Constraint("Coincident", 30, 2, 31, 1),
    Sketcher.Constraint("Coincident", 31, 2, 32, 1),
    Sketcher.Constraint("Coincident", 32, 2, 33, 1),
    Sketcher.Constraint("Coincident", 33, 2, 34, 1),
    Sketcher.Constraint("Coincident", 34, 2, 35, 1),
    Sketcher.Constraint("Coincident", 35, 2, 36, 1),
    Sketcher.Constraint("Coincident", 36, 2, 37, 1),
    Sketcher.Constraint("Coincident", 37, 2, 38, 1),
    Sketcher.Constraint("Coincident", 38, 2, 39, 1),
    Sketcher.Constraint("Coincident", 39, 2, 40, 1),
    Sketcher.Constraint("Coincident", 40, 2, 41, 1),
    Sketcher.Constraint("Coincident", 41, 2, 42, 1),
    Sketcher.Constraint("Coincident", 42, 2, 43, 1),
    Sketcher.Constraint("Coincident", 43, 2, 44, 1),
    Sketcher.Constraint("Coincident", 44, 2, 45, 1),
    Sketcher.Constraint("Coincident", 45, 2, 46, 1),
    Sketcher.Constraint("Coincident", 46, 2, 47, 1),
    Sketcher.Constraint("Coincident", 47, 2, 48, 1),
    Sketcher.Constraint("Coincident", 48, 2, 49, 1),
    Sketcher.Constraint("Coincident", 49, 2, 0, 1),
    Sketcher.Constraint("Parallel", 0, 25),
    Sketcher.Constraint("Parallel", 1, 26),
    Sketcher.Constraint("Parallel", 2, 27),
    Sketcher.Constraint("Parallel", 3, 28),
    Sketcher.Constraint("Parallel", 4, 29),
    Sketcher.Constraint("Parallel", 5, 30),
    Sketcher.Constraint("Parallel", 6, 31),
    Sketcher.Constraint("Parallel", 7, 32),
    Sketcher.Constraint("Parallel", 8, 33),
    Sketcher.Constraint("Parallel", 9, 34),
    Sketcher.Constraint("Parallel", 10, 35),
    Sketcher.Constraint("Parallel", 11, 36),
    Sketcher.Constraint("Parallel", 12, 37),
    Sketcher.Constraint("Parallel", 13, 38),
    Sketcher.Constraint("Parallel", 14, 39),
    Sketcher.Constraint("Parallel", 15, 40),
    Sketcher.Constraint("Parallel", 16, 41),
    Sketcher.Constraint("Parallel", 17, 42),
    Sketcher.Constraint("Parallel", 18, 43),
    Sketcher.Constraint("Parallel", 19, 44),
    Sketcher.Constraint("Parallel", 20, 45),
    Sketcher.Constraint("Parallel", 21, 46),
    Sketcher.Constraint("Parallel", 22, 47),
    Sketcher.Constraint("Parallel", 23, 48),
    Sketcher.Constraint("Parallel", 24, 49),
    Sketcher.Constraint("Equal", 0, 1),
    Sketcher.Constraint("Equal", 1, 2),
    Sketcher.Constraint("Equal", 2, 3),
    Sketcher.Constraint("Equal", 3, 4),
    Sketcher.Constraint("Equal", 4, 5),
    Sketcher.Constraint("Equal", 5, 6),
    Sketcher.Constraint("Equal", 6, 7),
    Sketcher.Constraint("Equal", 7, 8),
    Sketcher.Constraint("Equal", 8, 9),
    Sketcher.Constraint("Equal", 9, 10),
    Sketcher.Constraint("Equal", 10, 11),
    Sketcher.Constraint("Equal", 11, 12),
    Sketcher.Constraint("Equal", 12, 13),
    Sketcher.Constraint("Equal", 13, 14),
    Sketcher.Constraint("Equal", 14, 15),
    Sketcher.Constraint("Equal", 15, 16),
    Sketcher.Constraint("Equal", 16, 17),
    Sketcher.Constraint("Equal", 17, 18),
    Sketcher.Constraint("Equal", 18, 19),
    Sketcher.Constraint("Equal", 19, 20),
    Sketcher.Constraint("Equal", 20, 21),
    Sketcher.Constraint("Equal", 21, 22),
    Sketcher.Constraint("Equal", 22, 23),
    Sketcher.Constraint("Equal", 23, 24),
    Sketcher.Constraint("Equal", 24, 25),
    Sketcher.Constraint("Equal", 25, 26),
    Sketcher.Constraint("Equal", 26, 27),
    Sketcher.Constraint("Equal", 27, 28),
    Sketcher.Constraint("Equal", 28, 29),
    Sketcher.Constraint("Equal", 29, 30),
    Sketcher.Constraint("Equal", 30, 31),
    Sketcher.Constraint("Equal", 31, 32),
    Sketcher.Constraint("Equal", 32, 33),
    Sketcher.Constraint("Equal", 33, 34),
    Sketcher.Constraint("Equal", 34, 35),
    Sketcher.Constraint("Equal", 35, 36),
    Sketcher.Constraint("Equal", 36, 37),
    Sketcher.Constraint("Equal", 37, 38),
    Sketcher.Constraint("Equal", 38, 39),
    Sketcher.Constraint("Equal", 39, 40),
    Sketcher.Constraint("Equal", 40, 41),
    Sketcher.Constraint("Equal", 41, 42),
    Sketcher.Constraint("Equal", 42, 43),
    Sketcher.Constraint("Equal", 43, 44),
    Sketcher.Constraint("Equal", 44, 45),
    Sketcher.Constraint("Equal", 45, 46),
    Sketcher.Constraint("Equal", 46, 47),
    Sketcher.Constraint("DistanceY", -1, 1, 3, 2, 7.7663),
    Sketcher.Constraint("DistanceX", 16, 2, -1, 1, 43.707299),
    Sketcher.Constraint("DistanceY", -1, 1, 17, 2, 21.916499),
    Sketcher.Constraint("DistanceY", -1, 1, 27, 2, 112.773998),
    Sketcher.Constraint("DistanceY", 9, 2, 11, 2, 2.3017),
    Sketcher.Constraint("DistanceY", 11, 2, 6, 2, 3.326898),
    Sketcher.Constraint("DistanceX", 11, 2, 12, 2, 9.265502),
    Sketcher.Constraint("DistanceX", 10, 2, 12, 2, 18.826599),
    Sketcher.Constraint("DistanceY", 8, 2, 12, 2, 4.567101),
    Sketcher.Constraint("DistanceY", 12, 2, 16, 2, 22.4197),
    Sketcher.Constraint("DistanceX", 15, 2, 20, 2, 23.331),
    Sketcher.Constraint("DistanceX", 39, 2, 36, 2, 26.332198),
    Sketcher.Constraint("DistanceX", 43, 2, 38, 2, 32.985102),
    Sketcher.Constraint("DistanceY", -1, 1, 0, 2, 31.350878),
    Sketcher.Constraint("DistanceX", 3, 2, -1, 1, 156.38836),
    Sketcher.Constraint("DistanceY", 7, 2, -1, 1, 11.009961),
    Sketcher.Constraint("DistanceX", 9, 2, -1, 1, 103.540932),
    Sketcher.Constraint("DistanceX", 13, 2, -1, 1, 66.18464),
    Sketcher.Constraint("DistanceX", 14, 2, -1, 1, 57.941729),
    Sketcher.Constraint("DistanceY", -1, 1, 14, 2, 0.903749),
    Sketcher.Constraint("DistanceX", 19, 2, -1, 1, 29.559878),
    Sketcher.Constraint("DistanceX", 22, 2, -1, 1, 25.729341),
    Sketcher.Constraint("DistanceY", -1, 1, 22, 2, 68.173719),
    Sketcher.Constraint("DistanceY", -1, 1, 23, 2, 77.826268),
    Sketcher.Constraint("DistanceY", -1, 1, 24, 2, 87.25818),
    Sketcher.Constraint("DistanceX", 28, 2, -1, 1, 49.64633),
    Sketcher.Constraint("DistanceY", -1, 1, 29, 2, 126.152321),
    Sketcher.Constraint("DistanceY", -1, 1, 30, 2, 131.41659),
])
pad2 = doc.addObject("PartDesign::Pad", "Pad001")
body.addObject(pad2)
pad2.Profile = sketch2
pad2.setExpression("Length", "Params.pad2_length")

# Sketch on XZ plane
sketch3 = doc.addObject("Sketcher::SketchObject", "Sketch002")
body.addObject(sketch3)
sketch3.AttachmentSupport = (doc.XZ_Plane, [""])
sketch3.MapMode = "FlatFace"
sketch3.AttachmentOffset = App.Placement(Vector(0, 0, 24.6 * 25.4), App.Rotation())
sketch3.addGeometry([
    Part.LineSegment(Vector(-172.835152, 994.320333, 0), Vector(-172.835152, 97.268219, 0)),
    Part.LineSegment(Vector(-172.835152, 97.268219, 0), Vector(1323.843241, 97.268219, 0)),
    Part.LineSegment(Vector(1323.843241, 97.268219, 0), Vector(1323.843241, 994.320333, 0)),
    Part.LineSegment(Vector(1323.843241, 994.320333, 0), Vector(-172.835152, 994.320333, 0)),
], False)
sketch3.addConstraint([
    Sketcher.Constraint("Coincident", 0, 2, 1, 1),
    Sketcher.Constraint("Coincident", 1, 2, 2, 1),
    Sketcher.Constraint("Coincident", 2, 2, 3, 1),
    Sketcher.Constraint("Coincident", 3, 2, 0, 1),
    Sketcher.Constraint("Vertical", 0),
    Sketcher.Constraint("Horizontal", 1),
    Sketcher.Constraint("Vertical", 2),
    Sketcher.Constraint("Horizontal", 3),
    Sketcher.Constraint("DistanceX", 1, 1, 1, 2, 1496.678393),
    Sketcher.Constraint("DistanceY", 0, 2, 0, 1, 897.052115),
    Sketcher.Constraint("DistanceY", -1, 1, 0, 2, 97.268219),
    Sketcher.Constraint("DistanceX", -1, 1, 1, 2, 1323.843241),
])
pad3 = doc.addObject("PartDesign::Pad", "Pad002")
body.addObject(pad3)
pad3.Profile = sketch3
pad3.setExpression("Length", "Params.pad3_length")

doc.recompute()
